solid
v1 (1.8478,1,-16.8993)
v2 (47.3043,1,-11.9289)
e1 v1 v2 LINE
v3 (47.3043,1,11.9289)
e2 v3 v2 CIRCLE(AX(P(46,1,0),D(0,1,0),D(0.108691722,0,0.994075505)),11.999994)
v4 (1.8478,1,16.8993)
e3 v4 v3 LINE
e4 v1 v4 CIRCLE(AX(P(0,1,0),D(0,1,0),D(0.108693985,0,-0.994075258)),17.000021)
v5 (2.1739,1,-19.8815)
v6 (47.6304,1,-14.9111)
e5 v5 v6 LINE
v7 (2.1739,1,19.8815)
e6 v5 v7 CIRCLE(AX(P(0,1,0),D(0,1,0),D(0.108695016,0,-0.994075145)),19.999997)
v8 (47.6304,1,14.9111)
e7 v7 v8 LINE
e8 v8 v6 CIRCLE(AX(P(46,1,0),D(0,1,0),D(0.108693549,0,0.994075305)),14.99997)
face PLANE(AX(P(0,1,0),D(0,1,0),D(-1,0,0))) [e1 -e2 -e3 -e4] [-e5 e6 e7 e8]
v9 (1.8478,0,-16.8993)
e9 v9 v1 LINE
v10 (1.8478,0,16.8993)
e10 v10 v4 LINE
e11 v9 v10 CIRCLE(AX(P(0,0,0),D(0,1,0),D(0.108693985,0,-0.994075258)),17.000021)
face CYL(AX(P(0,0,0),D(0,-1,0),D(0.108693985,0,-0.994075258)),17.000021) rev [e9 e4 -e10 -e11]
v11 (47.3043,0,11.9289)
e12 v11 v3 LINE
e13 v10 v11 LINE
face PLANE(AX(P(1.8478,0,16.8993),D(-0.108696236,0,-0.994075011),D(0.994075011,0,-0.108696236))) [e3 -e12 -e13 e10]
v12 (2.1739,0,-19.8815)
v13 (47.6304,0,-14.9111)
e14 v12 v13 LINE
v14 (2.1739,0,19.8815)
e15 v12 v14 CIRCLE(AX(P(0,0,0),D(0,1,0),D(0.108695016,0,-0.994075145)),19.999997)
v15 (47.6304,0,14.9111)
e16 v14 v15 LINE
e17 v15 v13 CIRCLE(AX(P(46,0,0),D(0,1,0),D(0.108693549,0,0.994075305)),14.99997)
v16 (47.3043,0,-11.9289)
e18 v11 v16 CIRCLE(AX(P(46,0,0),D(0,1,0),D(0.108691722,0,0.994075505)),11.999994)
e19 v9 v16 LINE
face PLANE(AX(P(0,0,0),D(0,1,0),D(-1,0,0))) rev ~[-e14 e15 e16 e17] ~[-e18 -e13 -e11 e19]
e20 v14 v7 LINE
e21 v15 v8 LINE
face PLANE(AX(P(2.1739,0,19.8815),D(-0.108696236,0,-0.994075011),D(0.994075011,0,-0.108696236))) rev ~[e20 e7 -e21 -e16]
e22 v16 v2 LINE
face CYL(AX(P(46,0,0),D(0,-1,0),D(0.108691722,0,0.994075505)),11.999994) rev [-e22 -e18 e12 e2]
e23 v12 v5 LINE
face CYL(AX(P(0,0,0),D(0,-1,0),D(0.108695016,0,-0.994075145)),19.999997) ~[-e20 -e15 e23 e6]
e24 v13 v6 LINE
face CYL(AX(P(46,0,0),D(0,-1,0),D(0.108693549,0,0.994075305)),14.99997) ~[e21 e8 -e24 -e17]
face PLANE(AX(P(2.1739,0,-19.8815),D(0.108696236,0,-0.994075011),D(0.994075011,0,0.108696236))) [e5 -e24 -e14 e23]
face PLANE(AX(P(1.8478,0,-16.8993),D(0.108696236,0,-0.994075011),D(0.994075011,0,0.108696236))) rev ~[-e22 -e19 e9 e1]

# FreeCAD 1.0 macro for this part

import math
import FreeCAD as App
import Part
import Sketcher

doc = App.newDocument("Part")
body = doc.addObject("PartDesign::Body", "Body")

# Sketch on XZ plane
sketch1 = doc.addObject("Sketcher::SketchObject", "Sketch")
body.addObject(sketch1)
sketch1.AttachmentSupport = (doc.XZ_Plane, [""])
sketch1.MapMode = "FlatFace"
sketch1.addGeometry([
    Part.LineSegment(App.Vector(48, -15, 0), App.Vector(2, -20, 0)),  # 0
    Part.ArcOfCircle(Part.Circle(App.Vector(0, 0, 0), App.Vector(0, 0, 1), 20), math.radians(84), math.radians(276)),  # 1
    Part.LineSegment(App.Vector(2, 20, 0), App.Vector(48, 15, 0)),  # 2
    Part.ArcOfCircle(Part.Circle(App.Vector(46, 0, 0), App.Vector(0, 0, 1), 15), math.radians(-84), math.radians(84)),  # 3
    Part.ArcOfCircle(Part.Circle(App.Vector(0, 0, 0), App.Vector(0, 0, 1), 17), math.radians(84), math.radians(276)),  # 4
    Part.LineSegment(App.Vector(2, -17, 0), App.Vector(47, -12, 0)),  # 5
    Part.ArcOfCircle(Part.Circle(App.Vector(46, 0, 0), App.Vector(0, 0, 1), 12), math.radians(-84), math.radians(84)),  # 6
    Part.LineSegment(App.Vector(47, 12, 0), App.Vector(2, 17, 0)),  # 7
], False)
sketch1.addConstraint([
    Sketcher.Constraint("Tangent", 0, 2, 1, 2),
    Sketcher.Constraint("Tangent", 1, 1, 2, 1),
    Sketcher.Constraint("Tangent", 2, 2, 3, 2),
    Sketcher.Constraint("Tangent", 3, 1, 0, 1),
    Sketcher.Constraint("Tangent", 4, 2, 5, 1),
    Sketcher.Constraint("Tangent", 5, 2, 6, 1),
    Sketcher.Constraint("Tangent", 6, 2, 7, 1),
    Sketcher.Constraint("Tangent", 7, 2, 4, 1),
    Sketcher.Constraint("Coincident", 1, 3, -1, 1),
    Sketcher.Constraint("Coincident", 4, 3, -1, 1),
    Sketcher.Constraint("Coincident", 6, 3, 3, 3),
    Sketcher.Constraint("PointOnObject", 3, 3, -1),
    Sketcher.Constraint("Parallel", 0, 5),
    Sketcher.Constraint("Radius", 1, 20.0),
    Sketcher.Constraint("Radius", 3, 15.0),
    Sketcher.Constraint("DistanceX", -1, 1, 3, 3, 46.0),
    Sketcher.Constraint("Radius", 4, 17.0),
])
pad1 = doc.addObject("PartDesign::Pad", "Pad")
body.addObject(pad1)
pad1.Profile = sketch1
pad1.Length = 1
pad1.Reversed = True

doc.recompute()
